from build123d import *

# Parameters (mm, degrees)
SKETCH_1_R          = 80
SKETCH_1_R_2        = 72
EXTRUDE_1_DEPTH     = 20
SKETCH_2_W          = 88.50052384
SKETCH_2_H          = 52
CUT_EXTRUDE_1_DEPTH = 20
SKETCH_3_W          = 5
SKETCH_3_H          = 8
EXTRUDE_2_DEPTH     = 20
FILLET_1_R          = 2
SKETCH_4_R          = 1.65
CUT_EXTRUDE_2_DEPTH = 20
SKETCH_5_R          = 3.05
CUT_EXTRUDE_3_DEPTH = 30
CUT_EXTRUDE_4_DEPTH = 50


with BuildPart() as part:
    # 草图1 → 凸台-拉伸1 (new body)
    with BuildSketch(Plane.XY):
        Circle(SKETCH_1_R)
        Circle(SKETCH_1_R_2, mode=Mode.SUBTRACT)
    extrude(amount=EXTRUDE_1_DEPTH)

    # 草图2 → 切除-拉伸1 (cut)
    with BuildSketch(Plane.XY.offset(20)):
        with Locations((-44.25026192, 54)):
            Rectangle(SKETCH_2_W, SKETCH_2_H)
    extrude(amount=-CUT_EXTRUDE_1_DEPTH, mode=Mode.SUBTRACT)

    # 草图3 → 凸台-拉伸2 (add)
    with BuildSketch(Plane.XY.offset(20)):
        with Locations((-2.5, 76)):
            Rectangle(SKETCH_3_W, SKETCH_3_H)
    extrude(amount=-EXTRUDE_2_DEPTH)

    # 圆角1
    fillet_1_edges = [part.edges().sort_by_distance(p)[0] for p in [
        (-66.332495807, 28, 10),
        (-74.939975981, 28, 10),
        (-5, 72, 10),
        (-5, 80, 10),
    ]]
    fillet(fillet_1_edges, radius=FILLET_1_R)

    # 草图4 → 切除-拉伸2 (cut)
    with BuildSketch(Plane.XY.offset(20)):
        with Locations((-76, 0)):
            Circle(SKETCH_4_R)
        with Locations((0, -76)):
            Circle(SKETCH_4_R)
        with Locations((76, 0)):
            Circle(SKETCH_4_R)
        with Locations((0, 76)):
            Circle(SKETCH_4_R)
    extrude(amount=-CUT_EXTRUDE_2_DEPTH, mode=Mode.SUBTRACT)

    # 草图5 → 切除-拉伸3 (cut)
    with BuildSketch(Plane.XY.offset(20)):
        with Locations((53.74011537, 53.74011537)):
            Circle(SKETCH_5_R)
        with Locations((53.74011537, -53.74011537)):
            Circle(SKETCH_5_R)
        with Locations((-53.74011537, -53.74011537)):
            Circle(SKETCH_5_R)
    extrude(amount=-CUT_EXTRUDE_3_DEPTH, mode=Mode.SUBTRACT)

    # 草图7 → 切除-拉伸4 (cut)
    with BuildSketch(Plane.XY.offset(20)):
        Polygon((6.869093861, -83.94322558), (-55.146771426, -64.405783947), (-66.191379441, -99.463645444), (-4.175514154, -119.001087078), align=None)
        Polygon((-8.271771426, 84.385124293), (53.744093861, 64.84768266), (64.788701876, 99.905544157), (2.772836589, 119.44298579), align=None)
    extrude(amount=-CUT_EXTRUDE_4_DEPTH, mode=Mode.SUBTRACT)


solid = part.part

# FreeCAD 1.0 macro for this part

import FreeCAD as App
import Part
import Sketcher
from FreeCAD import Vector
Q = App.Units.Quantity


def edges_at(feature, points):
    """Names of the edges that pass closest to the given points."""
    edges = feature.Shape.Edges
    near = lambda p: min(range(len(edges)), key=lambda i: edges[i].distToShape(Part.Vertex(*p))[0])
    return sorted({f"Edge{near(p) + 1}" for p in points})


def add_polygon(sketch, points):
    """Adds a closed chain of lines whose ends are joined by coincident constraints."""
    first, n = sketch.GeometryCount, len(points)
    for a, b in zip(points, points[1:] + points[:1]):
        sketch.addGeometry(Part.LineSegment(App.Vector(*a, 0), App.Vector(*b, 0)), False)
    for i in range(n):
        sketch.addConstraint(Sketcher.Constraint("Coincident", first + i, 2, first + (i + 1) % n, 1))

doc = App.newDocument("Part")
params = doc.addObject("Spreadsheet::Sheet", "Params")
for row, (alias, value) in enumerate([
    ("sketch1_diameter", "160 mm"),
    ("sketch1_diameter2", "144 mm"),
    ("pad1_length", "20 mm"),
    ("sketch2_height", "52 mm"),
    ("pocket1_length", "20 mm"),
    ("sketch3_width", "5 mm"),
    ("sketch3_height", "8 mm"),
    ("pad2_length", "20 mm"),
    ("fillet_radius", "2 mm"),
    ("sketch4_diameter", "3.3 mm"),
    ("pocket2_length", "20 mm"),
    ("sketch5_diameter", "6.1 mm"),
    ("pocket3_length", "30 mm"),
    ("pocket4_length", "50 mm"),
], start=1):
    params.set(f"A{row}", alias)
    params.set(f"B{row}", "=" + value)
    params.setAlias(f"B{row}", alias)

body = doc.addObject("PartDesign::Body", "Body")

sketch1 = doc.addObject("Sketcher::SketchObject", "Sketch")
body.addObject(sketch1)
sketch1.AttachmentSupport = (doc.XY_Plane, [""])
sketch1.MapMode = "FlatFace"
sketch1.addGeometry(Part.Circle(Vector(0, 0, 0), Vector(0, 0, 1), 80), False)
sketch1.addGeometry(Part.Circle(Vector(0, 0, 0), Vector(0, 0, 1), 72), False)
sketch1.addConstraint(Sketcher.Constraint("Coincident", 0, 3, -1, 1))
sketch1.addConstraint(Sketcher.Constraint("Coincident", 1, 3, -1, 1))
sketch1.addConstraint(Sketcher.Constraint("Diameter", 0, Q("160 mm")))
sketch1.addConstraint(Sketcher.Constraint("Diameter", 1, Q("144 mm")))
sketch1.setExpression("Constraints[2]", "Params.sketch1_diameter")
sketch1.setExpression("Constraints[3]", "Params.sketch1_diameter2")
pad1 = doc.addObject("PartDesign::Pad", "Pad")
body.addObject(pad1)
pad1.Profile = sketch1
pad1.setExpression("Length", "Params.pad1_length")

sketch2 = doc.addObject("Sketcher::SketchObject", "Sketch001")
body.addObject(sketch2)
sketch2.AttachmentSupport = (doc.XY_Plane, [""])
sketch2.MapMode = "FlatFace"
sketch2.AttachmentOffset = App.Placement(Vector(0, 0, 20), App.Rotation())
add_polygon(sketch2, [(-89, 80), (-89, 28), (0, 28), (0, 80)])
sketch2.addConstraint(Sketcher.Constraint("Vertical", 0))
sketch2.addConstraint(Sketcher.Constraint("Horizontal", 1))
sketch2.addConstraint(Sketcher.Constraint("Vertical", 2))
sketch2.addConstraint(Sketcher.Constraint("Horizontal", 3))
sketch2.addConstraint(Sketcher.Constraint("PointOnObject", 1, 2, -2))
sketch2.addConstraint(Sketcher.Constraint("DistanceY", 0, 2, 0, 1, Q("52 mm")))
sketch2.addConstraint(Sketcher.Constraint("DistanceY", -1, 1, 0, 2, Q("28 mm")))
sketch2.addConstraint(Sketcher.Constraint("DistanceX", 1, 1, 1, 2, Q("88.500524 mm")))
sketch2.setExpression("Constraints[9]", "Params.sketch2_height")
pocket1 = doc.addObject("PartDesign::Pocket", "Pocket")
body.addObject(pocket1)
pocket1.Profile = sketch2
pocket1.setExpression("Length", "Params.pocket1_length")

sketch3 = doc.addObject("Sketcher::SketchObject", "Sketch002")
body.addObject(sketch3)
sketch3.AttachmentSupport = (doc.XY_Plane, [""])
sketch3.MapMode = "FlatFace"
sketch3.AttachmentOffset = App.Placement(Vector(0, 0, 20), App.Rotation())
add_polygon(sketch3, [(-5, 80), (-5, 72), (0, 72), (0, 80)])
sketch3.addConstraint(Sketcher.Constraint("Vertical", 0))
sketch3.addConstraint(Sketcher.Constraint("Horizontal", 1))
sketch3.addConstraint(Sketcher.Constraint("Vertical", 2))
sketch3.addConstraint(Sketcher.Constraint("Horizontal", 3))
sketch3.addConstraint(Sketcher.Constraint("PointOnObject", 1, 2, -2))
sketch3.addConstraint(Sketcher.Constraint("DistanceX", 1, 1, 1, 2, Q("5 mm")))
sketch3.addConstraint(Sketcher.Constraint("DistanceY", 0, 2, 0, 1, Q("8 mm")))
sketch3.addConstraint(Sketcher.Constraint("DistanceY", -1, 1, 0, 2, Q("72 mm")))
sketch3.setExpression("Constraints[9]", "Params.sketch3_width")
sketch3.setExpression("Constraints[10]", "Params.sketch3_height")
pad2 = doc.addObject("PartDesign::Pad", "Pad001")
body.addObject(pad2)
pad2.Profile = sketch3
pad2.setExpression("Length", "Params.pad2_length")
pad2.Reversed = True
doc.recompute()

fillet = doc.addObject("PartDesign::Fillet", "Fillet")
body.addObject(fillet)
fillet.Base = (pad2, edges_at(pad2, [
    (-66.332, 28, 10),
    (-74.94, 28, 10),
    (-5, 72, 10),
    (-5, 80, 10),
]))
fillet.setExpression("Radius", "Params.fillet_radius")

sketch4 = doc.addObject("Sketcher::SketchObject", "Sketch003")
body.addObject(sketch4)
sketch4.AttachmentSupport = (doc.XY_Plane, [""])
sketch4.MapMode = "FlatFace"
sketch4.AttachmentOffset = App.Placement(Vector(0, 0, 20), App.Rotation())
sketch4.addGeometry(Part.Circle(Vector(-76, 0, 0), Vector(0, 0, 1), 1.6), False)
sketch4.addGeometry(Part.Circle(Vector(0, -76, 0), Vector(0, 0, 1), 1.6), False)
sketch4.addGeometry(Part.Circle(Vector(76, 0, 0), Vector(0, 0, 1), 1.6), False)
sketch4.addGeometry(Part.Circle(Vector(0, 76, 0), Vector(0, 0, 1), 1.6), False)
sketch4.addConstraint(Sketcher.Constraint("Equal", 0, 1))
sketch4.addConstraint(Sketcher.Constraint("Equal", 1, 2))
sketch4.addConstraint(Sketcher.Constraint("Equal", 2, 3))
sketch4.addConstraint(Sketcher.Constraint("Symmetric", 0, 3, 2, 3, -1, 1))
sketch4.addConstraint(Sketcher.Constraint("Symmetric", 1, 3, 3, 3, -1, 1))
sketch4.addConstraint(Sketcher.Constraint("PointOnObject", 0, 3, -1))
sketch4.addConstraint(Sketcher.Constraint("PointOnObject", 1, 3, -2))
sketch4.addConstraint(Sketcher.Constraint("Diameter", 0, Q("3.3 mm")))
sketch4.addConstraint(Sketcher.Constraint("DistanceX", 0, 3, -1, 1, Q("76 mm")))
sketch4.addConstraint(Sketcher.Constraint("DistanceY", 1, 3, -1, 1, Q("76 mm")))
sketch4.setExpression("Constraints[7]", "Params.sketch4_diameter")
pocket2 = doc.addObject("PartDesign::Pocket", "Pocket001")
body.addObject(pocket2)
pocket2.Profile = sketch4
pocket2.setExpression("Length", "Params.pocket2_length")

sketch5 = doc.addObject("Sketcher::SketchObject", "Sketch004")
body.addObject(sketch5)
sketch5.AttachmentSupport = (doc.XY_Plane, [""])
sketch5.MapMode = "FlatFace"
sketch5.AttachmentOffset = App.Placement(Vector(0, 0, 20), App.Rotation())
sketch5.addGeometry(Part.Circle(Vector(53.7, 53.7, 0), Vector(0, 0, 1), 3), False)
sketch5.addGeometry(Part.Circle(Vector(53.7, -53.7, 0), Vector(0, 0, 1), 3), False)
sketch5.addGeometry(Part.Circle(Vector(-53.7, -53.7, 0), Vector(0, 0, 1), 3), False)
sketch5.addConstraint(Sketcher.Constraint("Equal", 0, 1))
sketch5.addConstraint(Sketcher.Constraint("Equal", 1, 2))
sketch5.addConstraint(Sketcher.Constraint("Symmetric", 0, 3, 2, 3, -1, 1))
sketch5.addConstraint(Sketcher.Constraint("Symmetric", 1, 3, 2, 3, -2))
sketch5.addConstraint(Sketcher.Constraint("Diameter", 0, Q("6.1 mm")))
sketch5.addConstraint(Sketcher.Constraint("DistanceY", 1, 3, 0, 3, Q("107.480231 mm")))
sketch5.addConstraint(Sketcher.Constraint("DistanceX", 2, 3, 1, 3, Q("107.480231 mm")))
sketch5.setExpression("Constraints[4]", "Params.sketch5_diameter")
pocket3 = doc.addObject("PartDesign::Pocket", "Pocket002")
body.addObject(pocket3)
pocket3.Profile = sketch5
pocket3.setExpression("Length", "Params.pocket3_length")

sketch6 = doc.addObject("Sketcher::SketchObject", "Sketch005")
body.addObject(sketch6)
sketch6.AttachmentSupport = (doc.XY_Plane, [""])
sketch6.MapMode = "FlatFace"
sketch6.AttachmentOffset = App.Placement(Vector(0, 0, 20), App.Rotation())
add_polygon(sketch6, [(7, -84), (-55, -64), (-66, -99), (-4, -119)])
add_polygon(sketch6, [(-8, 84), (54, 65), (65, 100), (3, 119)])
sketch6.addConstraint(Sketcher.Constraint("Perpendicular", 0, 1))
sketch6.addConstraint(Sketcher.Constraint("Perpendicular", 1, 2))
sketch6.addConstraint(Sketcher.Constraint("Perpendicular", 2, 3))
sketch6.addConstraint(Sketcher.Constraint("Perpendicular", 3, 4))
sketch6.addConstraint(Sketcher.Constraint("Perpendicular", 4, 5))
sketch6.addConstraint(Sketcher.Constraint("Perpendicular", 5, 6))
sketch6.addConstraint(Sketcher.Constraint("Perpendicular", 6, 7))
sketch6.addConstraint(Sketcher.Constraint("Equal", 2, 4))
sketch6.addConstraint(Sketcher.Constraint("Equal", 3, 5))
sketch6.addConstraint(Sketcher.Constraint("DistanceX", 3, 2, 4, 2, Q("46.875 mm")))
sketch6.addConstraint(Sketcher.Constraint("DistanceX", -1, 1, 5, 2, Q("64.788702 mm")))
sketch6.addConstraint(Sketcher.Constraint("DistanceX", 0, 2, -1, 1, Q("55.146771 mm")))
sketch6.addConstraint(Sketcher.Constraint("DistanceX", 1, 2, -1, 1, Q("66.191379 mm")))
sketch6.addConstraint(Sketcher.Constraint("DistanceY", 1, 2, 0, 2, Q("35.057861 mm")))
sketch6.addConstraint(Sketcher.Constraint("DistanceY", 3, 2, 4, 2, Q("148.790908 mm")))
sketch6.addConstraint(Sketcher.Constraint("DistanceY", 0, 2, -1, 1, Q("64.405784 mm")))
pocket4 = doc.addObject("PartDesign::Pocket", "Pocket003")
body.addObject(pocket4)
pocket4.Profile = sketch6
pocket4.setExpression("Length", "Params.pocket4_length")

doc.recompute()
